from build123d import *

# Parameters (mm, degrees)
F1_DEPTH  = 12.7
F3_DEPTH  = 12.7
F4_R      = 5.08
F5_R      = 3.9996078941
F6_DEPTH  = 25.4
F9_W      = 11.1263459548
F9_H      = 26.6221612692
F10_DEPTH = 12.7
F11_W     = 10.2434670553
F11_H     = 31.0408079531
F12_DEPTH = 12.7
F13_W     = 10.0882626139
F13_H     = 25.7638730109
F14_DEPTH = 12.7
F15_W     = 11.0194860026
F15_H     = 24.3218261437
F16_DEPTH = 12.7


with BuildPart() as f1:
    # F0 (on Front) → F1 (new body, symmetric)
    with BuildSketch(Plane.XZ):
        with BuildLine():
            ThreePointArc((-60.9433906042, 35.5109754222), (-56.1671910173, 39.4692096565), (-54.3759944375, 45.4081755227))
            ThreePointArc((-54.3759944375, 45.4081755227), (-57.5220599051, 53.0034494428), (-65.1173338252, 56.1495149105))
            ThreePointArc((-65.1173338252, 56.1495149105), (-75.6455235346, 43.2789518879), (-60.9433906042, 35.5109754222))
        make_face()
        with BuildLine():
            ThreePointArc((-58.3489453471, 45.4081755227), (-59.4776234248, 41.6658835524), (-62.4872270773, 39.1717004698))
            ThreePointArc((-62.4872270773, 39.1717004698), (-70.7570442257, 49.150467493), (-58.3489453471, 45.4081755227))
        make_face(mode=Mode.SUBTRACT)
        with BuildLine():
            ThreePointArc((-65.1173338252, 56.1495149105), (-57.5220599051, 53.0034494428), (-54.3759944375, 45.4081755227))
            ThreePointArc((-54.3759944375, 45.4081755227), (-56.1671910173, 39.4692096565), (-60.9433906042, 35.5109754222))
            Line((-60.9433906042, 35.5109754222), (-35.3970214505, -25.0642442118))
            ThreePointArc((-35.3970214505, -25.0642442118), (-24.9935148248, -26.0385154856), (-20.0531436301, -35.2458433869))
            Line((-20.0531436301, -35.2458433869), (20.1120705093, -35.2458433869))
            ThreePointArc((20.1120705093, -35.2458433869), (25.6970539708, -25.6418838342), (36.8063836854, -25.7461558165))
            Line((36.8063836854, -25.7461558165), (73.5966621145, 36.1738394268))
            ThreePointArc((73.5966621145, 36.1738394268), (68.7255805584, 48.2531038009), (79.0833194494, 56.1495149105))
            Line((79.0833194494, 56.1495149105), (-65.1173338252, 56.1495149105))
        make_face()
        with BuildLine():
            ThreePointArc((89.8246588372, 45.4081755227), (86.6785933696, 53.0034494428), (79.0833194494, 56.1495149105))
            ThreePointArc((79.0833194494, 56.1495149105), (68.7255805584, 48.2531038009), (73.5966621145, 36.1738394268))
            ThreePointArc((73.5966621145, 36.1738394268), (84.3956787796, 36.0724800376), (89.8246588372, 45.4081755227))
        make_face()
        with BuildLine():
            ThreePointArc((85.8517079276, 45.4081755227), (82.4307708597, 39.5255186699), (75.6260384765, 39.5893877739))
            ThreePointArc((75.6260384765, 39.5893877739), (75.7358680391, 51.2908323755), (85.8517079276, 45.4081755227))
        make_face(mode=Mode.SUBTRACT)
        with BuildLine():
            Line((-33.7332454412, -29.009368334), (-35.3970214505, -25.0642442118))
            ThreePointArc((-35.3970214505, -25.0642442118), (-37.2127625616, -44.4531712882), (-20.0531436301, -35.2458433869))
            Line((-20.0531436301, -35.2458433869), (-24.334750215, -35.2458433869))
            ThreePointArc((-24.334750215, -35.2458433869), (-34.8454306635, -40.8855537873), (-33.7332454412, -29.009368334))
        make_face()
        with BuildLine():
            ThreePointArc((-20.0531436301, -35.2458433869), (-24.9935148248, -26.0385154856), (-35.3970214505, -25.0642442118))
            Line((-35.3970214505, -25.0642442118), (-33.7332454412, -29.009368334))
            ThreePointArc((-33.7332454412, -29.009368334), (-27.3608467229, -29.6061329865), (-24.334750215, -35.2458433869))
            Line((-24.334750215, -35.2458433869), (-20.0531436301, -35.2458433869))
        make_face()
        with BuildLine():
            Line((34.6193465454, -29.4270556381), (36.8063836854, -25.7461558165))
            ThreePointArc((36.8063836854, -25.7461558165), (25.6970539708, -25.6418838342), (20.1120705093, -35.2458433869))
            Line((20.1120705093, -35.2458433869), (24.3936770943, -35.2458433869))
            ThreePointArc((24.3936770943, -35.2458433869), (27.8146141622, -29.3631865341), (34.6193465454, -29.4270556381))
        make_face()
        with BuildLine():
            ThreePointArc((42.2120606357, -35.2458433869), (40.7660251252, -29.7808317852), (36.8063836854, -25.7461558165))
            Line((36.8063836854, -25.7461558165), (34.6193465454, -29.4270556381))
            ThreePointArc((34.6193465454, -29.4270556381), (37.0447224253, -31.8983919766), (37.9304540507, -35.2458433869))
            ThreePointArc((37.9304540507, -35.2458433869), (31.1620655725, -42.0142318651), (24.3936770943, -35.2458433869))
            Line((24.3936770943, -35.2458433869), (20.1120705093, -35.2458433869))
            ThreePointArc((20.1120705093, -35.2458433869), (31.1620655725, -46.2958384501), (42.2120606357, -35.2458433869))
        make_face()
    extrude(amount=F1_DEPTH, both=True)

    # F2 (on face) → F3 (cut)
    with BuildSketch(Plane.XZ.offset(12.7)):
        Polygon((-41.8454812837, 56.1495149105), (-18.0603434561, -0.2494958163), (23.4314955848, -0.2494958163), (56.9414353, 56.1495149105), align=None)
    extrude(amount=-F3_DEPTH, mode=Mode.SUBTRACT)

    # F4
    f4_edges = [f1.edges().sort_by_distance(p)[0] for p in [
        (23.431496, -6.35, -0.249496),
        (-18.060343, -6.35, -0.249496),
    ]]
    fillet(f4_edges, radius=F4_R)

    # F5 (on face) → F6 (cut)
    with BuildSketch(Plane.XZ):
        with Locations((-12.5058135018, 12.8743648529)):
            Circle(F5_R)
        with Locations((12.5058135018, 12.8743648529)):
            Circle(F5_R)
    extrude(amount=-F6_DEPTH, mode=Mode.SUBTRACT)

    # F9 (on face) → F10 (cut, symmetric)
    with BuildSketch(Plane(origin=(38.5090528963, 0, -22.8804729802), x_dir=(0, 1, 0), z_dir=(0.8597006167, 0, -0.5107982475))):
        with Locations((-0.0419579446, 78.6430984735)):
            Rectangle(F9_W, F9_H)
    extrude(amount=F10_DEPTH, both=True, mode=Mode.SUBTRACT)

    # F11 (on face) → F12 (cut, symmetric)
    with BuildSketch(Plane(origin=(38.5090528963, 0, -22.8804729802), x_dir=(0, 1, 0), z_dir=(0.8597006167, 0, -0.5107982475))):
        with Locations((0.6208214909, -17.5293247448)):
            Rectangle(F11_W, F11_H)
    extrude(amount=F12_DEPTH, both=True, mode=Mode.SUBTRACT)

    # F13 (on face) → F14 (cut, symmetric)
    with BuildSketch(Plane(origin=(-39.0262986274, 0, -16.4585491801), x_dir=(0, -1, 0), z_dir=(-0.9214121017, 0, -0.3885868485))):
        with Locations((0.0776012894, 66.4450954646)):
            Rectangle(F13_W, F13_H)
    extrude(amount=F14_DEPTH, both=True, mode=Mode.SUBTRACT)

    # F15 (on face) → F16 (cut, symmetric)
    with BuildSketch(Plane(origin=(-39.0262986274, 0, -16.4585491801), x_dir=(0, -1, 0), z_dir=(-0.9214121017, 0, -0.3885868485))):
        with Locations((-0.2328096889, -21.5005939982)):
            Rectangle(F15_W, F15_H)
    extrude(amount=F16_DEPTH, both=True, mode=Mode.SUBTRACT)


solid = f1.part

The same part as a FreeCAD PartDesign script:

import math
import FreeCAD as App
import Part
import Sketcher
Q = App.Units.Quantity


def edges_at(feature, points):
    """Names of the edges that pass closest to the given points."""
    edges = feature.Shape.Edges
    near = lambda p: min(range(len(edges)), key=lambda i: edges[i].distToShape(Part.Vertex(*p))[0])
    return sorted({f"Edge{near(p) + 1}" for p in points})


def add_polygon(sketch, points):
    """Adds a closed chain of lines whose ends are joined by coincident constraints."""
    first, n = sketch.GeometryCount, len(points)
    for a, b in zip(points, points[1:] + points[:1]):
        sketch.addGeometry(Part.LineSegment(App.Vector(*a, 0), App.Vector(*b, 0)), False)
    for i in range(n):
        sketch.addConstraint(Sketcher.Constraint("Coincident", first + i, 2, first + (i + 1) % n, 1))

doc = App.newDocument("Part")
body = doc.addObject("PartDesign::Body", "Body")

# Sketch on XZ plane
sketch1 = body.newObject("Sketcher::SketchObject", "Sketch")
sketch1.AttachmentSupport = (doc.getObject("XZ_Plane"), [""])
sketch1.MapMode = "FlatFace"
sketch1.addGeometry([
    Part.ArcOfCircle(Part.Circle(App.Vector(-65, 45, 0), App.Vector(0, 0, 1), 11), math.radians(90), math.radians(293)),  # 0
    Part.LineSegment(App.Vector(-61, 36, 0), App.Vector(-35, -25, 0)),  # 1
    Part.ArcOfCircle(Part.Circle(App.Vector(-31, -35, 0), App.Vector(0, 0, 1), 11), math.radians(113), math.radians(360)),  # 2
    Part.LineSegment(App.Vector(-20, -35, 0), App.Vector(20, -35, 0)),  # 3
    Part.ArcOfCircle(Part.Circle(App.Vector(31, -35, 0), App.Vector(0, 0, 1), 11), math.radians(180), math.radians(360)),  # 4
    Part.ArcOfCircle(Part.Circle(App.Vector(31, -35, 0), App.Vector(0, 0, 1), 11), math.radians(0), math.radians(59)),  # 5
    Part.LineSegment(App.Vector(37, -26, 0), App.Vector(74, 36, 0)),  # 6
    Part.ArcOfCircle(Part.Circle(App.Vector(79, 45, 0), App.Vector(0, 0, 1), 11), math.radians(-121), math.radians(0)),  # 7
    Part.ArcOfCircle(Part.Circle(App.Vector(79, 45, 0), App.Vector(0, 0, 1), 11), math.radians(0), math.radians(90)),  # 8
    Part.LineSegment(App.Vector(79, 56, 0), App.Vector(-65, 56, 0)),  # 9
    Part.ArcOfCircle(Part.Circle(App.Vector(31, -35, 0), App.Vector(0, 0, 1), 7), math.radians(59), math.radians(180)),  # 10
    Part.ArcOfCircle(Part.Circle(App.Vector(31, -35, 0), App.Vector(0, 0, 1), 7), math.radians(0), math.radians(59)),  # 11
    Part.ArcOfCircle(Part.Circle(App.Vector(31, -35, 0), App.Vector(0, 0, 1), 7), math.radians(180), math.radians(360)),  # 12
    Part.ArcOfCircle(Part.Circle(App.Vector(-65, 45, 0), App.Vector(0, 0, 1), 7), math.radians(0), math.radians(293)),  # 13
    Part.ArcOfCircle(Part.Circle(App.Vector(-65, 45, 0), App.Vector(0, 0, 1), 7), math.radians(-67), math.radians(0)),  # 14
    Part.ArcOfCircle(Part.Circle(App.Vector(79, 45, 0), App.Vector(0, 0, 1), 7), math.radians(0), math.radians(239)),  # 15
    Part.ArcOfCircle(Part.Circle(App.Vector(79, 45, 0), App.Vector(0, 0, 1), 7), math.radians(-121), math.radians(0)),  # 16
    Part.ArcOfCircle(Part.Circle(App.Vector(-31, -35, 0), App.Vector(0, 0, 1), 7), math.radians(0), math.radians(113)),  # 17
    Part.ArcOfCircle(Part.Circle(App.Vector(-31, -35, 0), App.Vector(0, 0, 1), 7), math.radians(113), math.radians(360)),  # 18
], False)
sketch1.addConstraint([
    Sketcher.Constraint("Coincident", 0, 2, 1, 1),
    Sketcher.Constraint("Coincident", 1, 2, 2, 1),
    Sketcher.Constraint("Coincident", 2, 2, 3, 1),
    Sketcher.Constraint("Coincident", 3, 2, 4, 1),
    Sketcher.Constraint("Tangent", 4, 2, 5, 1),
    Sketcher.Constraint("Coincident", 5, 2, 6, 1),
    Sketcher.Constraint("Coincident", 6, 2, 7, 1),
    Sketcher.Constraint("Tangent", 7, 2, 8, 1),
    Sketcher.Constraint("Tangent", 8, 2, 9, 1),
    Sketcher.Constraint("Tangent", 9, 2, 0, 1),
    Sketcher.Constraint("Tangent", 10, 1, 11, 2),
    Sketcher.Constraint("Tangent", 11, 1, 12, 2),
    Sketcher.Constraint("Tangent", 12, 1, 10, 2),
    Sketcher.Constraint("Tangent", 13, 1, 14, 2),
    Sketcher.Constraint("Coincident", 14, 1, 13, 2),
    Sketcher.Constraint("Tangent", 15, 1, 16, 2),
    Sketcher.Constraint("Coincident", 16, 1, 15, 2),
    Sketcher.Constraint("Tangent", 17, 1, 18, 2),
    Sketcher.Constraint("Coincident", 18, 1, 17, 2),
    Sketcher.Constraint("Horizontal", 3),
    Sketcher.Constraint("Horizontal", 9),
    Sketcher.Constraint("Coincident", 10, 3, 4, 3),
    Sketcher.Constraint("Coincident", 13, 3, 0, 3),
    Sketcher.Constraint("Coincident", 15, 3, 7, 3),
    Sketcher.Constraint("Coincident", 17, 3, 2, 3),
    Sketcher.Constraint("Equal", 2, 4),
    Sketcher.Constraint("Equal", 4, 5),
    Sketcher.Constraint("Equal", 0, 7),
    Sketcher.Constraint("Equal", 7, 8),
    Sketcher.Constraint("Equal", 12, 13),
    Sketcher.Constraint("Equal", 14, 15),
    Sketcher.Constraint("Equal", 16, 17),
    Sketcher.Constraint("Horizontal", 2, 3, 4, 3),
    Sketcher.Constraint("Horizontal", 18, 3, 2, 2),
    Sketcher.Constraint("Horizontal", 3, 2, 4, 2),
    Sketcher.Constraint("Horizontal", 16, 3, 7, 2),
    Sketcher.Constraint("Horizontal", 4, 2, 11, 1),
    Sketcher.Constraint("Horizontal", 11, 1, 12, 1),
    Sketcher.Constraint("Horizontal", 7, 2, 13, 1),
    Sketcher.Constraint("Horizontal", 13, 1, 15, 1),
    Sketcher.Constraint("Horizontal", 12, 1, 17, 1),
    Sketcher.Constraint("Radius", 0, 10.741339),
    Sketcher.Constraint("Radius", 10, 6.768388),
    Sketcher.Constraint("Radius", 2, 11.049995),
    Sketcher.Constraint("DistanceY", -1, 1, 14, 1, 39.1717),
    Sketcher.Constraint("DistanceX", 0, 3, 4, 3, 96.279399),
    Sketcher.Constraint("DistanceY", 0, 2, 0, 3, 9.8972),
    Sketcher.Constraint("DistanceY", 2, 3, 1, 2, 10.181599),
    Sketcher.Constraint("DistanceY", 10, 1, 5, 2, 3.6809),
    Sketcher.Constraint("DistanceX", 3, 1, 3, 2, 40.165214),
    Sketcher.Constraint("DistanceX", 9, 2, 9, 1, 144.200653),
    Sketcher.Constraint("DistanceX", 2, 3, -1, 1, 31.103139),
    Sketcher.Constraint("DistanceY", -1, 1, 6, 2, 36.173839),
    Sketcher.Constraint("DistanceX", -1, 1, 16, 1, 75.626038),
    Sketcher.Constraint("DistanceY", 18, 1, -1, 1, 29.009368),
    Sketcher.Constraint("DistanceY", 2, 3, 0, 3, 80.654019),
    Sketcher.Constraint("DistanceX", 5, 3, 5, 2, 5.644318),
    Sketcher.Constraint("DistanceX", 5, 2, 6, 2, 36.790278),
])
pad1 = body.newObject("PartDesign::Pad", "Pad")
pad1.Profile = sketch1
pad1.Length = Q("1 in")
pad1.Midplane = True

# Sketch on XZ plane
sketch2 = body.newObject("Sketcher::SketchObject", "Sketch001")
sketch2.AttachmentSupport = (doc.getObject("XZ_Plane"), [""])
sketch2.MapMode = "FlatFace"
sketch2.AttachmentOffset = App.Placement(App.Vector(0, 0, 0.5 * 25.4), App.Rotation())
add_polygon(sketch2, [(-42, 56), (-18, 0), (23, 0), (57, 56)])  # lines 0-3
sketch2.addConstraint([
    Sketcher.Constraint("Horizontal", 1),
    Sketcher.Constraint("Horizontal", 3),
    Sketcher.Constraint("DistanceX", -1, 1, 1, 2, Q("0.9224998 in")),
    Sketcher.Constraint("DistanceX", 1, 1, 1, 2, 41.491839),
    Sketcher.Constraint("DistanceX", 3, 2, 3, 1, 98.786917),
    Sketcher.Constraint("DistanceX", 3, 2, -1, 1, 41.845481),
    Sketcher.Constraint("DistanceY", 1, 2, 2, 2, 56.399011),
    Sketcher.Constraint("DistanceY", 0, 2, -1, 1, 0.249496),
])
pocket1 = body.newObject("PartDesign::Pocket", "Pocket")
pocket1.Profile = sketch2
pocket1.Length = Q("0.5 in")
doc.recompute()

fillet = body.newObject("PartDesign::Fillet", "Fillet")
fillet.Base = (pocket1, edges_at(pocket1, [(23.431, -6.35, -0.249), (-18.06, -6.35, -0.249)]))
fillet.Radius = Q("0.2 in")

# Sketch on XZ plane
sketch3 = body.newObject("Sketcher::SketchObject", "Sketch002")
sketch3.AttachmentSupport = (doc.getObject("XZ_Plane"), [""])
sketch3.MapMode = "FlatFace"
sketch3.addGeometry([
    Part.Circle(App.Vector(-12.5, 12.9, 0), App.Vector(0, 0, 1), 4),
    Part.Circle(App.Vector(12.5, 12.9, 0), App.Vector(0, 0, 1), 4),
], False)
sketch3.addConstraint([
    Sketcher.Constraint("Equal", 0, 1),
    Sketcher.Constraint("Symmetric", 0, 3, 1, 3, -2),
    Sketcher.Constraint("Diameter", 0, 7.999216),
    Sketcher.Constraint("DistanceX", 0, 3, -1, 1, 12.505814),
    Sketcher.Constraint("DistanceY", -1, 1, 0, 3, 12.874365),
])
pocket2 = body.newObject("PartDesign::Pocket", "Pocket001")
pocket2.Profile = sketch3
pocket2.Length = Q("1 in")

# Sketch on an angled plane
sketch4 = body.newObject("Sketcher::SketchObject", "Sketch003")
sketch4.Placement = App.Placement(App.Vector(38.509053, 0, -22.880473), App.Rotation(App.Vector(0, 1, 0), App.Vector(0.510798247, 0, 0.859700617), App.Vector(0.859700617, 0, -0.510798247), "ZXY"))
add_polygon(sketch4, [(-6, 92), (-6, 65), (6, 65), (6, 92)])  # lines 0-3
sketch4.addConstraint([
    Sketcher.Constraint("Vertical", 0),
    Sketcher.Constraint("Horizontal", 1),
    Sketcher.Constraint("Vertical", 2),
    Sketcher.Constraint("Horizontal", 3),
    Sketcher.Constraint("DistanceY", 0, 2, 0, 1, 26.622161),
    Sketcher.Constraint("DistanceX", 1, 1, 1, 2, 11.126346),
    Sketcher.Constraint("DistanceX", 0, 2, -1, 1, 5.605131),
    Sketcher.Constraint("DistanceY", -1, 1, 2, 2, 91.954179),
])
pocket3 = body.newObject("PartDesign::Pocket", "Pocket002")
pocket3.Profile = sketch4
pocket3.Length = Q("1 in")
pocket3.Midplane = True

# Sketch on an angled plane
sketch5 = body.newObject("Sketcher::SketchObject", "Sketch004")
sketch5.Placement = App.Placement(App.Vector(38.509053, 0, -22.880473), App.Rotation(App.Vector(0, 1, 0), App.Vector(0.510798247, 0, 0.859700617), App.Vector(0.859700617, 0, -0.510798247), "ZXY"))
add_polygon(sketch5, [(-5, -2), (-5, -33), (6, -33), (6, -2)])  # lines 0-3
sketch5.addConstraint([
    Sketcher.Constraint("Vertical", 0),
    Sketcher.Constraint("Horizontal", 1),
    Sketcher.Constraint("Vertical", 2),
    Sketcher.Constraint("Horizontal", 3),
    Sketcher.Constraint("DistanceX", 1, 1, 1, 2, 10.243467),
    Sketcher.Constraint("DistanceY", 0, 2, 0, 1, 31.040808),
    Sketcher.Constraint("DistanceY", 0, 2, -1, 1, 33.049729),
    Sketcher.Constraint("DistanceX", 0, 2, -1, 1, 4.500912),
])
pocket4 = body.newObject("PartDesign::Pocket", "Pocket003")
pocket4.Profile = sketch5
pocket4.Length = Q("1 in")
pocket4.Midplane = True

# Sketch on an angled plane
sketch6 = body.newObject("Sketcher::SketchObject", "Sketch005")
sketch6.Placement = App.Placement(App.Vector(-39.026299, 0, -16.458549), App.Rotation(App.Vector(0, -1, 0), App.Vector(-0.388586849, 0, 0.921412102), App.Vector(-0.921412102, 0, -0.388586849), "ZXY"))
add_polygon(sketch6, [(-5, 79), (-5, 54), (5, 54), (5, 79)])  # lines 0-3
sketch6.addConstraint([
    Sketcher.Constraint("Vertical", 0),
    Sketcher.Constraint("Horizontal", 1),
    Sketcher.Constraint("Vertical", 2),
    Sketcher.Constraint("Horizontal", 3),
    Sketcher.Constraint("DistanceX", 1, 1, 1, 2, 10.088263),
    Sketcher.Constraint("DistanceY", 0, 2, 0, 1, 25.763873),
    Sketcher.Constraint("DistanceX", 0, 2, -1, 1, 4.96653),
    Sketcher.Constraint("DistanceY", -1, 1, 0, 2, 53.563159),
])
pocket5 = body.newObject("PartDesign::Pocket", "Pocket004")
pocket5.Profile = sketch6
pocket5.Length = Q("1 in")
pocket5.Midplane = True

# Sketch on an angled plane
sketch7 = body.newObject("Sketcher::SketchObject", "Sketch006")
sketch7.Placement = App.Placement(App.Vector(-39.026299, 0, -16.458549), App.Rotation(App.Vector(0, -1, 0), App.Vector(-0.388586849, 0, 0.921412102), App.Vector(-0.921412102, 0, -0.388586849), "ZXY"))
add_polygon(sketch7, [(-6, -9), (-6, -34), (5, -34), (5, -9)])  # lines 0-3
sketch7.addConstraint([
    Sketcher.Constraint("Vertical", 0),
    Sketcher.Constraint("Horizontal", 1),
    Sketcher.Constraint("Vertical", 2),
    Sketcher.Constraint("Horizontal", 3),
    Sketcher.Constraint("DistanceX", 1, 1, 1, 2, 11.019486),
    Sketcher.Constraint("DistanceY", 0, 2, 0, 1, 24.321826),
    Sketcher.Constraint("DistanceY", 2, 2, -1, 1, 9.339681),
    Sketcher.Constraint("DistanceX", 0, 2, -1, 1, 5.742553),
])
pocket6 = body.newObject("PartDesign::Pocket", "Pocket005")
pocket6.Profile = sketch7
pocket6.Length = Q("1 in")
pocket6.Midplane = True

doc.recompute()
